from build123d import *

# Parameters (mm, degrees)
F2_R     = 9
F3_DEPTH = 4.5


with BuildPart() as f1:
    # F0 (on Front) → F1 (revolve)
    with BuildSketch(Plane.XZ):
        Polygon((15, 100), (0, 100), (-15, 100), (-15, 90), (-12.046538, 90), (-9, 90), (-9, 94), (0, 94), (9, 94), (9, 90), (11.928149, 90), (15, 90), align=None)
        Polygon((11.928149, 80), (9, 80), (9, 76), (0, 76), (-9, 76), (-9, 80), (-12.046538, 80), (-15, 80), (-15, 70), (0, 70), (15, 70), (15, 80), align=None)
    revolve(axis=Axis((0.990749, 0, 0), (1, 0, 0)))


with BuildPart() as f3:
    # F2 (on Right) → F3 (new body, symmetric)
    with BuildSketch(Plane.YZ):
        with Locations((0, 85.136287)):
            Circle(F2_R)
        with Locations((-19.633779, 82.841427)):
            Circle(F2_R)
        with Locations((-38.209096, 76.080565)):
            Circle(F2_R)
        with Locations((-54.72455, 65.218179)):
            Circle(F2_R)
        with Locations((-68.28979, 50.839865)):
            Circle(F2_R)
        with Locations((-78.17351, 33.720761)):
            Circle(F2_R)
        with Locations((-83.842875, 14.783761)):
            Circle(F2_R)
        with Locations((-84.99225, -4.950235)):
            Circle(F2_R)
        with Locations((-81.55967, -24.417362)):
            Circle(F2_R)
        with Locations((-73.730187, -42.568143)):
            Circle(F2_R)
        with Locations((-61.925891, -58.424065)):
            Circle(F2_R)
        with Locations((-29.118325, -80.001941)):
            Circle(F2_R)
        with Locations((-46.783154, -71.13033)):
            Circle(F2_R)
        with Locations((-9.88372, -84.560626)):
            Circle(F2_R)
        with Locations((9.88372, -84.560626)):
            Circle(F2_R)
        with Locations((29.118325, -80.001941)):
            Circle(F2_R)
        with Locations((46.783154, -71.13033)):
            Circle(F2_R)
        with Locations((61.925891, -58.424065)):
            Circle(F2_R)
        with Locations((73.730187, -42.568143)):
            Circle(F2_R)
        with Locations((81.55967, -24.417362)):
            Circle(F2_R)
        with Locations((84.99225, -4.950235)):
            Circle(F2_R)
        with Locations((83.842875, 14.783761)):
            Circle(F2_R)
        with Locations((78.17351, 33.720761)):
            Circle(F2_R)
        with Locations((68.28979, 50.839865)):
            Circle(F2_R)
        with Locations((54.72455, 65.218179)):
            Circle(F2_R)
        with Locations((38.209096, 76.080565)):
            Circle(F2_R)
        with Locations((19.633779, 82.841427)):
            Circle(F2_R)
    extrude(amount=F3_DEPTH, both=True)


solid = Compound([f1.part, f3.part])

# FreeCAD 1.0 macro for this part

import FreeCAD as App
import Part
import Sketcher

V = App.Vector


def add_polygon(sketch, points):
    """Adds a closed chain of lines whose ends are joined by coincident constraints."""
    first, n = sketch.GeometryCount, len(points)
    for a, b in zip(points, points[1:] + points[:1]):
        sketch.addGeometry(Part.LineSegment(App.Vector(*a, 0), App.Vector(*b, 0)), False)
    for i in range(n):
        sketch.addConstraint(Sketcher.Constraint("Coincident", first + i, 2, first + (i + 1) % n, 1))

doc = App.newDocument("Part")
params = doc.addObject("Spreadsheet::Sheet", "Params")
for row, (alias, value) in enumerate([
    ("sketch1_width", "30 mm"),
    ("sketch1_width2", "6 mm"),
    ("sketch1_height", "10 mm"),
    ("sketch1_height2", "4 mm"),
    ("revolution_angle", "360 deg"),
    ("sketch2_diameter", "18 mm"),
    ("pad1_length", "9 mm"),
], start=1):
    params.set(f"A{row}", alias)
    params.set(f"B{row}", "=" + value)
    params.setAlias(f"B{row}", alias)

body = doc.addObject("PartDesign::Body", "Body")
body.AllowCompound = True

# Sketch on XZ plane
sketch1 = body.newObject("Sketcher::SketchObject", "Sketch")
sketch1.AttachmentSupport = (doc.getObject("XZ_Plane"), [""])
sketch1.MapMode = "FlatFace"
add_polygon(sketch1, [(15, 100), (-15, 100), (-15, 90), (-9, 90), (-9, 94), (9, 94), (9, 90), (15, 90)])  # lines 0-7
add_polygon(sketch1, [(9, 80), (9, 76), (-9, 76), (-9, 80), (-15, 80), (-15, 70), (15, 70), (15, 80)])  # lines 8-15
sketch1.addConstraint(Sketcher.Constraint("Horizontal", 0))
sketch1.addConstraint(Sketcher.Constraint("Vertical", 1))
sketch1.addConstraint(Sketcher.Constraint("Horizontal", 2))
sketch1.addConstraint(Sketcher.Constraint("Vertical", 3))
sketch1.addConstraint(Sketcher.Constraint("Horizontal", 4))
sketch1.addConstraint(Sketcher.Constraint("Vertical", 5))
sketch1.addConstraint(Sketcher.Constraint("Horizontal", 6))
sketch1.addConstraint(Sketcher.Constraint("Vertical", 7))
sketch1.addConstraint(Sketcher.Constraint("Vertical", 8))
sketch1.addConstraint(Sketcher.Constraint("Horizontal", 9))
sketch1.addConstraint(Sketcher.Constraint("Vertical", 10))
sketch1.addConstraint(Sketcher.Constraint("Horizontal", 11))
sketch1.addConstraint(Sketcher.Constraint("Vertical", 12))
sketch1.addConstraint(Sketcher.Constraint("Horizontal", 13))
sketch1.addConstraint(Sketcher.Constraint("Vertical", 14))
sketch1.addConstraint(Sketcher.Constraint("Horizontal", 15))
sketch1.addConstraint(Sketcher.Constraint("Symmetric", 2, 2, 5, 2, -2))
sketch1.addConstraint(Sketcher.Constraint("Symmetric", 11, 2, 14, 2, -2))
sketch1.addConstraint(Sketcher.Constraint("Vertical", 5, 2, 8, 2))
sketch1.addConstraint(Sketcher.Constraint("Vertical", 3, 2, 9, 2))
sketch1.addConstraint(Sketcher.Constraint("Vertical", 1, 2, 11, 2))
sketch1.addConstraint(Sketcher.Constraint("Vertical", 7, 2, 13, 2))
sketch1.addConstraint(Sketcher.Constraint("Equal", 5, 8))
sketch1.addConstraint(Sketcher.Constraint("Equal", 7, 12))
sketch1.addConstraint(Sketcher.Constraint("DistanceX", 0, 2, 0, 1, 30.0))
sketch1.addConstraint(Sketcher.Constraint("DistanceX", 2, 1, 2, 2, 6.0))
sketch1.addConstraint(Sketcher.Constraint("DistanceY", 1, 2, 1, 1, 10.0))
sketch1.addConstraint(Sketcher.Constraint("DistanceY", 3, 1, 3, 2, 4.0))
sketch1.addConstraint(Sketcher.Constraint("DistanceY", -1, 1, 0, 2, 100.0))
sketch1.addConstraint(Sketcher.Constraint("DistanceY", -1, 1, 8, 2, 76.0))
sketch1.setExpression("Constraints[40]", "Params.sketch1_width")
sketch1.setExpression("Constraints[41]", "Params.sketch1_width2")
sketch1.setExpression("Constraints[42]", "Params.sketch1_height")
sketch1.setExpression("Constraints[43]", "Params.sketch1_height2")
revolution = body.newObject("PartDesign::Revolution", "Revolution")
revolution.Profile = sketch1
revolution.ReferenceAxis = (sketch1, ["H_Axis"])
revolution.setExpression("Angle", "Params.revolution_angle")
body2 = doc.addObject("PartDesign::Body", "Body001")
body2.AllowCompound = True

# Sketch on YZ plane
sketch2 = body2.newObject("Sketcher::SketchObject", "Sketch001")
sketch2.AttachmentSupport = (doc.getObject("YZ_Plane001"), [""])
sketch2.MapMode = "FlatFace"
sketch2.addGeometry(Part.Circle(V(0, 85, 0), V(0, 0, 1), 9), False)
sketch2.addGeometry(Part.Circle(V(-20, 83, 0), V(0, 0, 1), 9), False)
sketch2.addGeometry(Part.Circle(V(-38, 76, 0), V(0, 0, 1), 9), False)
sketch2.addGeometry(Part.Circle(V(-55, 65, 0), V(0, 0, 1), 9), False)
sketch2.addGeometry(Part.Circle(V(-68, 51, 0), V(0, 0, 1), 9), False)
sketch2.addGeometry(Part.Circle(V(-78, 34, 0), V(0, 0, 1), 9), False)
sketch2.addGeometry(Part.Circle(V(-84, 15, 0), V(0, 0, 1), 9), False)
sketch2.addGeometry(Part.Circle(V(-85, -5, 0), V(0, 0, 1), 9), False)
sketch2.addGeometry(Part.Circle(V(-82, -24, 0), V(0, 0, 1), 9), False)
sketch2.addGeometry(Part.Circle(V(-74, -43, 0), V(0, 0, 1), 9), False)
sketch2.addGeometry(Part.Circle(V(-62, -58, 0), V(0, 0, 1), 9), False)
sketch2.addGeometry(Part.Circle(V(-29, -80, 0), V(0, 0, 1), 9), False)
sketch2.addGeometry(Part.Circle(V(-47, -71, 0), V(0, 0, 1), 9), False)
sketch2.addGeometry(Part.Circle(V(-10, -85, 0), V(0, 0, 1), 9), False)
sketch2.addGeometry(Part.Circle(V(10, -85, 0), V(0, 0, 1), 9), False)
sketch2.addGeometry(Part.Circle(V(29, -80, 0), V(0, 0, 1), 9), False)
sketch2.addGeometry(Part.Circle(V(47, -71, 0), V(0, 0, 1), 9), False)
sketch2.addGeometry(Part.Circle(V(62, -58, 0), V(0, 0, 1), 9), False)
sketch2.addGeometry(Part.Circle(V(74, -43, 0), V(0, 0, 1), 9), False)
sketch2.addGeometry(Part.Circle(V(82, -24, 0), V(0, 0, 1), 9), False)
sketch2.addGeometry(Part.Circle(V(85, -5, 0), V(0, 0, 1), 9), False)
sketch2.addGeometry(Part.Circle(V(84, 15, 0), V(0, 0, 1), 9), False)
sketch2.addGeometry(Part.Circle(V(78, 34, 0), V(0, 0, 1), 9), False)
sketch2.addGeometry(Part.Circle(V(68, 51, 0), V(0, 0, 1), 9), False)
sketch2.addGeometry(Part.Circle(V(55, 65, 0), V(0, 0, 1), 9), False)
sketch2.addGeometry(Part.Circle(V(38, 76, 0), V(0, 0, 1), 9), False)
sketch2.addGeometry(Part.Circle(V(20, 83, 0), V(0, 0, 1), 9), False)
sketch2.addConstraint(Sketcher.Constraint("Equal", 0, 1))
sketch2.addConstraint(Sketcher.Constraint("Equal", 1, 2))
sketch2.addConstraint(Sketcher.Constraint("Equal", 2, 3))
sketch2.addConstraint(Sketcher.Constraint("Equal", 3, 4))
sketch2.addConstraint(Sketcher.Constraint("Equal", 4, 5))
sketch2.addConstraint(Sketcher.Constraint("Equal", 5, 6))
sketch2.addConstraint(Sketcher.Constraint("Equal", 6, 7))
sketch2.addConstraint(Sketcher.Constraint("Equal", 7, 8))
sketch2.addConstraint(Sketcher.Constraint("Equal", 8, 9))
sketch2.addConstraint(Sketcher.Constraint("Equal", 9, 10))
sketch2.addConstraint(Sketcher.Constraint("Equal", 10, 11))
sketch2.addConstraint(Sketcher.Constraint("Equal", 11, 12))
sketch2.addConstraint(Sketcher.Constraint("Equal", 12, 13))
sketch2.addConstraint(Sketcher.Constraint("Equal", 13, 14))
sketch2.addConstraint(Sketcher.Constraint("Equal", 14, 15))
sketch2.addConstraint(Sketcher.Constraint("Equal", 15, 16))
sketch2.addConstraint(Sketcher.Constraint("Equal", 16, 17))
sketch2.addConstraint(Sketcher.Constraint("Equal", 17, 18))
sketch2.addConstraint(Sketcher.Constraint("Equal", 18, 19))
sketch2.addConstraint(Sketcher.Constraint("Equal", 19, 20))
sketch2.addConstraint(Sketcher.Constraint("Equal", 20, 21))
sketch2.addConstraint(Sketcher.Constraint("Equal", 21, 22))
sketch2.addConstraint(Sketcher.Constraint("Equal", 22, 23))
sketch2.addConstraint(Sketcher.Constraint("Equal", 23, 24))
sketch2.addConstraint(Sketcher.Constraint("Equal", 24, 25))
sketch2.addConstraint(Sketcher.Constraint("Equal", 25, 26))
sketch2.addConstraint(Sketcher.Constraint("Symmetric", 13, 3, 14, 3, -2))
sketch2.addConstraint(Sketcher.Constraint("Symmetric", 11, 3, 15, 3, -2))
sketch2.addConstraint(Sketcher.Constraint("Symmetric", 12, 3, 16, 3, -2))
sketch2.addConstraint(Sketcher.Constraint("Symmetric", 10, 3, 17, 3, -2))
sketch2.addConstraint(Sketcher.Constraint("Symmetric", 9, 3, 18, 3, -2))
sketch2.addConstraint(Sketcher.Constraint("Symmetric", 8, 3, 19, 3, -2))
sketch2.addConstraint(Sketcher.Constraint("Symmetric", 7, 3, 20, 3, -2))
sketch2.addConstraint(Sketcher.Constraint("Symmetric", 6, 3, 21, 3, -2))
sketch2.addConstraint(Sketcher.Constraint("Symmetric", 5, 3, 22, 3, -2))
sketch2.addConstraint(Sketcher.Constraint("Symmetric", 4, 3, 23, 3, -2))
sketch2.addConstraint(Sketcher.Constraint("Symmetric", 3, 3, 24, 3, -2))
sketch2.addConstraint(Sketcher.Constraint("Symmetric", 2, 3, 25, 3, -2))
sketch2.addConstraint(Sketcher.Constraint("Symmetric", 1, 3, 26, 3, -2))
sketch2.addConstraint(Sketcher.Constraint("PointOnObject", 0, 3, -2))
sketch2.addConstraint(Sketcher.Constraint("Diameter", 0, 18.0))
sketch2.addConstraint(Sketcher.Constraint("DistanceY", 6, 3, 5, 3, 18.937))
sketch2.addConstraint(Sketcher.Constraint("DistanceY", 4, 3, 2, 3, 25.2407))
sketch2.addConstraint(Sketcher.Constraint("DistanceY", 7, 3, 4, 3, 55.7901))
sketch2.addConstraint(Sketcher.Constraint("DistanceX", 7, 3, 3, 3, 30.2677))
sketch2.addConstraint(Sketcher.Constraint("DistanceY", 11, 3, 9, 3, 37.433798))
sketch2.addConstraint(Sketcher.Constraint("DistanceY", 11, 3, 6, 3, 94.785702))
sketch2.addConstraint(Sketcher.Constraint("DistanceX", 1, 3, -1, 1, 19.633779))
sketch2.addConstraint(Sketcher.Constraint("DistanceX", 3, 3, -1, 1, 54.72455))
sketch2.addConstraint(Sketcher.Constraint("DistanceY", -1, 1, 3, 3, 65.218179))
sketch2.addConstraint(Sketcher.Constraint("DistanceX", 4, 3, -1, 1, 68.28979))
sketch2.addConstraint(Sketcher.Constraint("DistanceX", 5, 3, -1, 1, 78.17351))
sketch2.addConstraint(Sketcher.Constraint("DistanceY", -1, 1, 5, 3, 33.720761))
sketch2.addConstraint(Sketcher.Constraint("DistanceX", 8, 3, -1, 1, 81.55967))
sketch2.addConstraint(Sketcher.Constraint("DistanceX", 10, 3, -1, 1, 61.925891))
sketch2.addConstraint(Sketcher.Constraint("DistanceY", 12, 3, -1, 1, 71.13033))
sketch2.addConstraint(Sketcher.Constraint("DistanceX", 13, 3, -1, 1, 9.88372))
sketch2.addConstraint(Sketcher.Constraint("DistanceY", 1, 3, 0, 3, 2.29486))
sketch2.addConstraint(Sketcher.Constraint("DistanceY", 2, 3, 1, 3, 6.760862))
sketch2.addConstraint(Sketcher.Constraint("DistanceX", 6, 3, 2, 3, 45.633779))
sketch2.addConstraint(Sketcher.Constraint("DistanceY", 8, 3, 3, 3, 89.635541))
sketch2.addConstraint(Sketcher.Constraint("DistanceX", 6, 3, 9, 3, 10.112688))
sketch2.addConstraint(Sketcher.Constraint("DistanceY", 10, 3, 7, 3, 53.47383))
sketch2.addConstraint(Sketcher.Constraint("DistanceX", 6, 3, 11, 3, 54.72455))
sketch2.addConstraint(Sketcher.Constraint("DistanceX", 12, 3, 11, 3, 17.664829))
sketch2.addConstraint(Sketcher.Constraint("DistanceY", 13, 3, 10, 3, 26.136561))
sketch2.addConstraint(Sketcher.Constraint("DistanceX", 11, 3, 15, 3, 58.23665))
sketch2.addConstraint(Sketcher.Constraint("DistanceY", -1, 1, 0, 3, 85.136287))
sketch2.setExpression("Constraints[40]", "Params.sketch2_diameter")
pad1 = body2.newObject("PartDesign::Pad", "Pad")
pad1.Profile = sketch2
pad1.setExpression("Length", "Params.pad1_length")
pad1.Midplane = True

doc.recompute()
